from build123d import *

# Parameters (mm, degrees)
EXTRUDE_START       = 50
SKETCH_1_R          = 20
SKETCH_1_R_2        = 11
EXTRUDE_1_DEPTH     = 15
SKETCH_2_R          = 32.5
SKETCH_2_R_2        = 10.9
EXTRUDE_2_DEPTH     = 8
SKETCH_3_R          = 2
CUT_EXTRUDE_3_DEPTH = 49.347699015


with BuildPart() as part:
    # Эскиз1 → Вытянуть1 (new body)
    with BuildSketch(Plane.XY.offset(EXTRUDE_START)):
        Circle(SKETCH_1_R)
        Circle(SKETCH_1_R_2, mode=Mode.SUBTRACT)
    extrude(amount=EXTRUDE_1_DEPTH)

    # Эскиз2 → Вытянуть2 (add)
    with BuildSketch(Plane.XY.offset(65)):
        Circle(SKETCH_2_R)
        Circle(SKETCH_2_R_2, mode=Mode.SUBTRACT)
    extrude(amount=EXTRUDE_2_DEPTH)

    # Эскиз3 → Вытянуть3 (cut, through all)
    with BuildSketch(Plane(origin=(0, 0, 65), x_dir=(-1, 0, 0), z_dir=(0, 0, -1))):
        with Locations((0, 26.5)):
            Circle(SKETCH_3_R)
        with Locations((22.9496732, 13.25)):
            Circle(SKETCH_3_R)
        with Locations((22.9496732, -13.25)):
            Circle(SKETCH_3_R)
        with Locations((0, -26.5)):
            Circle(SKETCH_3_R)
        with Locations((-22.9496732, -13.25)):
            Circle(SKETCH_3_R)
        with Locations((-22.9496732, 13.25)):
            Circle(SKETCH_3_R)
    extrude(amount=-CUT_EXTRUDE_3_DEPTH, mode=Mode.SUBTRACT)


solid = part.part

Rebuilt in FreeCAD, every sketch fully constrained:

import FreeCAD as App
import Part
import Sketcher
from FreeCAD import Vector

doc = App.newDocument("Part")
params = doc.addObject("Spreadsheet::Sheet", "Params")
for row, (alias, value) in enumerate([
    ("sketch1_diameter", "40 mm"),
    ("sketch1_diameter2", "22 mm"),
    ("pad1_length", "15 mm"),
    ("sketch2_diameter", "65 mm"),
    ("sketch2_diameter2", "21.8 mm"),
    ("pad2_length", "8 mm"),
    ("sketch3_diameter", "4 mm"),
], start=1):
    params.set(f"A{row}", alias)
    params.set(f"B{row}", "=" + value)
    params.setAlias(f"B{row}", alias)

body = doc.addObject("PartDesign::Body", "Body")

sketch1 = body.newObject("Sketcher::SketchObject", "Sketch")
sketch1.AttachmentSupport = (doc.getObject("XY_Plane"), [""])
sketch1.MapMode = "FlatFace"
sketch1.AttachmentOffset = App.Placement(Vector(0, 0, 50), App.Rotation())
sketch1.addGeometry(Part.Circle(Vector(0, 0, 0), Vector(0, 0, 1), 20), False)
sketch1.addGeometry(Part.Circle(Vector(0, 0, 0), Vector(0, 0, 1), 11), False)
sketch1.addConstraint(Sketcher.Constraint("Coincident", 0, 3, -1, 1))
sketch1.addConstraint(Sketcher.Constraint("Coincident", 1, 3, -1, 1))
sketch1.addConstraint(Sketcher.Constraint("Diameter", 0, 40.0))
sketch1.addConstraint(Sketcher.Constraint("Diameter", 1, 22.0))
sketch1.setExpression("Constraints[2]", "Params.sketch1_diameter")
sketch1.setExpression("Constraints[3]", "Params.sketch1_diameter2")
pad1 = body.newObject("PartDesign::Pad", "Pad")
pad1.Profile = sketch1
pad1.setExpression("Length", "Params.pad1_length")

sketch2 = body.newObject("Sketcher::SketchObject", "Sketch001")
sketch2.AttachmentSupport = (doc.getObject("XY_Plane"), [""])
sketch2.MapMode = "FlatFace"
sketch2.AttachmentOffset = App.Placement(Vector(0, 0, 65), App.Rotation())
sketch2.addGeometry(Part.Circle(Vector(0, 0, 0), Vector(0, 0, 1), 32), False)
sketch2.addGeometry(Part.Circle(Vector(0, 0, 0), Vector(0, 0, 1), 11), False)
sketch2.addConstraint(Sketcher.Constraint("Coincident", 0, 3, -1, 1))
sketch2.addConstraint(Sketcher.Constraint("Coincident", 1, 3, -1, 1))
sketch2.addConstraint(Sketcher.Constraint("Diameter", 0, 65.0))
sketch2.addConstraint(Sketcher.Constraint("Diameter", 1, 21.8))
sketch2.setExpression("Constraints[2]", "Params.sketch2_diameter")
sketch2.setExpression("Constraints[3]", "Params.sketch2_diameter2")
pad2 = body.newObject("PartDesign::Pad", "Pad001")
pad2.Profile = sketch2
pad2.setExpression("Length", "Params.pad2_length")

sketch3 = body.newObject("Sketcher::SketchObject", "Sketch002")
sketch3.AttachmentSupport = (doc.getObject("XY_Plane"), [""])
sketch3.MapMode = "FlatFace"
sketch3.AttachmentOffset = App.Placement(Vector(0, 0, 65), App.Rotation())
sketch3.addGeometry(Part.Circle(Vector(0, 26.5, 0), Vector(0, 0, 1), 2), False)
sketch3.addGeometry(Part.Circle(Vector(-22.9, 13.2, 0), Vector(0, 0, 1), 2), False)
sketch3.addGeometry(Part.Circle(Vector(-22.9, -13.2, 0), Vector(0, 0, 1), 2), False)
sketch3.addGeometry(Part.Circle(Vector(0, -26.5, 0), Vector(0, 0, 1), 2), False)
sketch3.addGeometry(Part.Circle(Vector(22.9, -13.2, 0), Vector(0, 0, 1), 2), False)
sketch3.addGeometry(Part.Circle(Vector(22.9, 13.2, 0), Vector(0, 0, 1), 2), False)
sketch3.addConstraint(Sketcher.Constraint("Equal", 0, 1))
sketch3.addConstraint(Sketcher.Constraint("Equal", 1, 2))
sketch3.addConstraint(Sketcher.Constraint("Equal", 2, 3))
sketch3.addConstraint(Sketcher.Constraint("Equal", 3, 4))
sketch3.addConstraint(Sketcher.Constraint("Equal", 4, 5))
sketch3.addConstraint(Sketcher.Constraint("Symmetric", 0, 3, 3, 3, -1, 1))
sketch3.addConstraint(Sketcher.Constraint("Symmetric", 1, 3, 4, 3, -1, 1))
sketch3.addConstraint(Sketcher.Constraint("Symmetric", 2, 3, 5, 3, -1, 1))
sketch3.addConstraint(Sketcher.Constraint("Symmetric", 2, 3, 4, 3, -2))
sketch3.addConstraint(Sketcher.Constraint("PointOnObject", 0, 3, -2))
sketch3.addConstraint(Sketcher.Constraint("Diameter", 0, 4.0))
sketch3.addConstraint(Sketcher.Constraint("DistanceY", 3, 3, 0, 3, 53.0))
sketch3.addConstraint(Sketcher.Constraint("DistanceY", 2, 3, 1, 3, 26.5))
sketch3.addConstraint(Sketcher.Constraint("DistanceX", 1, 3, -1, 1, 22.949673))
sketch3.setExpression("Constraints[10]", "Params.sketch3_diameter")
pocket1 = body.newObject("PartDesign::Pocket", "Pocket")
pocket1.Profile = sketch3
pocket1.Type = "ThroughAll"
pocket1.Reversed = True

doc.recompute()
